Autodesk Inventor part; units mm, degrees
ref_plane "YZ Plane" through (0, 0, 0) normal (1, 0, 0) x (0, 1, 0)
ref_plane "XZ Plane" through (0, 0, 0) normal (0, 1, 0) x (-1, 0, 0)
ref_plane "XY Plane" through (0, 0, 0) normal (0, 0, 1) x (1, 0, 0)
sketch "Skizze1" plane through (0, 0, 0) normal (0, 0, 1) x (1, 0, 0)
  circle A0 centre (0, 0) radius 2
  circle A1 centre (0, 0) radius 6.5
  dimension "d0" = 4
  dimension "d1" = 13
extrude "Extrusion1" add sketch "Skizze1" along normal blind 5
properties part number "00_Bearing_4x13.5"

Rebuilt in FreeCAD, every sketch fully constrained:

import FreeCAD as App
import Part
import Sketcher
Q = App.Units.Quantity

doc = App.newDocument("Part")
body = doc.addObject("PartDesign::Body", "Body")

# Sketch on XY plane
sketch1 = body.newObject("Sketcher::SketchObject", "Sketch")
sketch1.AttachmentSupport = (doc.getObject("XY_Plane"), [""])
sketch1.MapMode = "FlatFace"
sketch1.addGeometry([
    Part.Circle(App.Vector(0, 0, 0), App.Vector(0, 0, 1), 6.5),
    Part.Circle(App.Vector(0, 0, 0), App.Vector(0, 0, 1), 2),
], False)
sketch1.addConstraint([
    Sketcher.Constraint("Coincident", 0, 3, -1, 1),
    Sketcher.Constraint("Coincident", 1, 3, -1, 1),
    Sketcher.Constraint("Diameter", 0, Q("13 mm")),
    Sketcher.Constraint("Diameter", 1, Q("4 mm")),
])
pad1 = body.newObject("PartDesign::Pad", "Pad")
pad1.Profile = sketch1
pad1.Length = 5

doc.recompute()
